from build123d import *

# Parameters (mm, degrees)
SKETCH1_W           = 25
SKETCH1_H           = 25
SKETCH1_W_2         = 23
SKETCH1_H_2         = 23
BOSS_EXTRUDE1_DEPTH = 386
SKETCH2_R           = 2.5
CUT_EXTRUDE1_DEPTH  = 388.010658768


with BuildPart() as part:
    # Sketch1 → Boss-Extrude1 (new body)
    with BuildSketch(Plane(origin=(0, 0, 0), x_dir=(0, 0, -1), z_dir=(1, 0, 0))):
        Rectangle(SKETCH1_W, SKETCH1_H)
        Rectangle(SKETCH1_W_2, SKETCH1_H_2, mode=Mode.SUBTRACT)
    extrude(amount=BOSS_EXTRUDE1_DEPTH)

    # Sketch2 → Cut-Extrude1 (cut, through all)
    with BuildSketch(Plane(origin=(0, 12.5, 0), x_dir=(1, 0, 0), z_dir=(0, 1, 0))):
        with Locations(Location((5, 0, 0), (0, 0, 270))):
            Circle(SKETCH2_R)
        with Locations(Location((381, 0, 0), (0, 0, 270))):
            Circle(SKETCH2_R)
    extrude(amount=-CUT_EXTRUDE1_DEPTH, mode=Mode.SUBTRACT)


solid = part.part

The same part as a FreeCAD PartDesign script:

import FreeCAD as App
import Part
import Sketcher

V = App.Vector
Q = App.Units.Quantity

doc = App.newDocument("Part")
body = doc.addObject("PartDesign::Body", "Body")

# Sketch on YZ plane
sketch1 = body.newObject("Sketcher::SketchObject", "Sketch")
sketch1.AttachmentSupport = (doc.getObject("YZ_Plane"), [""])
sketch1.MapMode = "FlatFace"
sketch1.addGeometry(Part.LineSegment(V(12, 12, 0), V(-12, 12, 0)), False)
sketch1.addGeometry(Part.LineSegment(V(-12, 12, 0), V(-12, -12, 0)), False)
sketch1.addGeometry(Part.LineSegment(V(-12, -12, 0), V(12, -12, 0)), False)
sketch1.addGeometry(Part.LineSegment(V(12, -12, 0), V(12, 12, 0)), False)
sketch1.addGeometry(Part.LineSegment(V(-12, -12, 0), V(-12, 12, 0)), False)
sketch1.addGeometry(Part.LineSegment(V(-12, 12, 0), V(12, 12, 0)), False)
sketch1.addGeometry(Part.LineSegment(V(12, 12, 0), V(12, -12, 0)), False)
sketch1.addGeometry(Part.LineSegment(V(12, -12, 0), V(-12, -12, 0)), False)
sketch1.addConstraint(Sketcher.Constraint("Coincident", 0, 2, 1, 1))
sketch1.addConstraint(Sketcher.Constraint("Coincident", 1, 2, 2, 1))
sketch1.addConstraint(Sketcher.Constraint("Coincident", 2, 2, 3, 1))
sketch1.addConstraint(Sketcher.Constraint("Coincident", 3, 2, 0, 1))
sketch1.addConstraint(Sketcher.Constraint("Coincident", 4, 2, 5, 1))
sketch1.addConstraint(Sketcher.Constraint("Coincident", 5, 2, 6, 1))
sketch1.addConstraint(Sketcher.Constraint("Coincident", 6, 2, 7, 1))
sketch1.addConstraint(Sketcher.Constraint("Coincident", 7, 2, 4, 1))
sketch1.addConstraint(Sketcher.Constraint("Horizontal", 0))
sketch1.addConstraint(Sketcher.Constraint("Vertical", 1))
sketch1.addConstraint(Sketcher.Constraint("Horizontal", 2))
sketch1.addConstraint(Sketcher.Constraint("Vertical", 3))
sketch1.addConstraint(Sketcher.Constraint("Vertical", 4))
sketch1.addConstraint(Sketcher.Constraint("Horizontal", 5))
sketch1.addConstraint(Sketcher.Constraint("Vertical", 6))
sketch1.addConstraint(Sketcher.Constraint("Horizontal", 7))
sketch1.addConstraint(Sketcher.Constraint("Symmetric", 0, 2, 2, 2, -1, 1))
sketch1.addConstraint(Sketcher.Constraint("Symmetric", 4, 2, 6, 2, -1, 1))
sketch1.addConstraint(Sketcher.Constraint("Equal", 2, 1))
sketch1.addConstraint(Sketcher.Constraint("Equal", 7, 4))
sketch1.addConstraint(Sketcher.Constraint("DistanceX", 0, 2, 0, 1, Q("25 mm")))
sketch1.addConstraint(Sketcher.Constraint("DistanceX", 5, 1, 5, 2, Q("23 mm")))
pad1 = body.newObject("PartDesign::Pad", "Pad")
pad1.Profile = sketch1
pad1.Length = 386

# Sketch on XZ plane
sketch2 = body.newObject("Sketcher::SketchObject", "Sketch001")
sketch2.AttachmentSupport = (doc.getObject("XZ_Plane"), [""])
sketch2.MapMode = "FlatFace"
sketch2.AttachmentOffset = App.Placement(V(0, 0, -12.5), App.Rotation())
sketch2.addGeometry(Part.Circle(V(5, 0, 0), V(0, 0, 1), 2.5), False)
sketch2.addGeometry(Part.Circle(V(381, 0, 0), V(0, 0, 1), 2.5), False)
sketch2.addConstraint(Sketcher.Constraint("Equal", 0, 1))
sketch2.addConstraint(Sketcher.Constraint("PointOnObject", 0, 3, -1))
sketch2.addConstraint(Sketcher.Constraint("PointOnObject", 1, 3, -1))
sketch2.addConstraint(Sketcher.Constraint("Diameter", 0, Q("5 mm")))
sketch2.addConstraint(Sketcher.Constraint("DistanceX", -1, 1, 0, 3, Q("5 mm")))
sketch2.addConstraint(Sketcher.Constraint("DistanceX", -1, 1, 1, 3, Q("381 mm")))
pocket1 = body.newObject("PartDesign::Pocket", "Pocket")
pocket1.Profile = sketch2
pocket1.Type = "ThroughAll"
pocket1.Reversed = True

doc.recompute()
